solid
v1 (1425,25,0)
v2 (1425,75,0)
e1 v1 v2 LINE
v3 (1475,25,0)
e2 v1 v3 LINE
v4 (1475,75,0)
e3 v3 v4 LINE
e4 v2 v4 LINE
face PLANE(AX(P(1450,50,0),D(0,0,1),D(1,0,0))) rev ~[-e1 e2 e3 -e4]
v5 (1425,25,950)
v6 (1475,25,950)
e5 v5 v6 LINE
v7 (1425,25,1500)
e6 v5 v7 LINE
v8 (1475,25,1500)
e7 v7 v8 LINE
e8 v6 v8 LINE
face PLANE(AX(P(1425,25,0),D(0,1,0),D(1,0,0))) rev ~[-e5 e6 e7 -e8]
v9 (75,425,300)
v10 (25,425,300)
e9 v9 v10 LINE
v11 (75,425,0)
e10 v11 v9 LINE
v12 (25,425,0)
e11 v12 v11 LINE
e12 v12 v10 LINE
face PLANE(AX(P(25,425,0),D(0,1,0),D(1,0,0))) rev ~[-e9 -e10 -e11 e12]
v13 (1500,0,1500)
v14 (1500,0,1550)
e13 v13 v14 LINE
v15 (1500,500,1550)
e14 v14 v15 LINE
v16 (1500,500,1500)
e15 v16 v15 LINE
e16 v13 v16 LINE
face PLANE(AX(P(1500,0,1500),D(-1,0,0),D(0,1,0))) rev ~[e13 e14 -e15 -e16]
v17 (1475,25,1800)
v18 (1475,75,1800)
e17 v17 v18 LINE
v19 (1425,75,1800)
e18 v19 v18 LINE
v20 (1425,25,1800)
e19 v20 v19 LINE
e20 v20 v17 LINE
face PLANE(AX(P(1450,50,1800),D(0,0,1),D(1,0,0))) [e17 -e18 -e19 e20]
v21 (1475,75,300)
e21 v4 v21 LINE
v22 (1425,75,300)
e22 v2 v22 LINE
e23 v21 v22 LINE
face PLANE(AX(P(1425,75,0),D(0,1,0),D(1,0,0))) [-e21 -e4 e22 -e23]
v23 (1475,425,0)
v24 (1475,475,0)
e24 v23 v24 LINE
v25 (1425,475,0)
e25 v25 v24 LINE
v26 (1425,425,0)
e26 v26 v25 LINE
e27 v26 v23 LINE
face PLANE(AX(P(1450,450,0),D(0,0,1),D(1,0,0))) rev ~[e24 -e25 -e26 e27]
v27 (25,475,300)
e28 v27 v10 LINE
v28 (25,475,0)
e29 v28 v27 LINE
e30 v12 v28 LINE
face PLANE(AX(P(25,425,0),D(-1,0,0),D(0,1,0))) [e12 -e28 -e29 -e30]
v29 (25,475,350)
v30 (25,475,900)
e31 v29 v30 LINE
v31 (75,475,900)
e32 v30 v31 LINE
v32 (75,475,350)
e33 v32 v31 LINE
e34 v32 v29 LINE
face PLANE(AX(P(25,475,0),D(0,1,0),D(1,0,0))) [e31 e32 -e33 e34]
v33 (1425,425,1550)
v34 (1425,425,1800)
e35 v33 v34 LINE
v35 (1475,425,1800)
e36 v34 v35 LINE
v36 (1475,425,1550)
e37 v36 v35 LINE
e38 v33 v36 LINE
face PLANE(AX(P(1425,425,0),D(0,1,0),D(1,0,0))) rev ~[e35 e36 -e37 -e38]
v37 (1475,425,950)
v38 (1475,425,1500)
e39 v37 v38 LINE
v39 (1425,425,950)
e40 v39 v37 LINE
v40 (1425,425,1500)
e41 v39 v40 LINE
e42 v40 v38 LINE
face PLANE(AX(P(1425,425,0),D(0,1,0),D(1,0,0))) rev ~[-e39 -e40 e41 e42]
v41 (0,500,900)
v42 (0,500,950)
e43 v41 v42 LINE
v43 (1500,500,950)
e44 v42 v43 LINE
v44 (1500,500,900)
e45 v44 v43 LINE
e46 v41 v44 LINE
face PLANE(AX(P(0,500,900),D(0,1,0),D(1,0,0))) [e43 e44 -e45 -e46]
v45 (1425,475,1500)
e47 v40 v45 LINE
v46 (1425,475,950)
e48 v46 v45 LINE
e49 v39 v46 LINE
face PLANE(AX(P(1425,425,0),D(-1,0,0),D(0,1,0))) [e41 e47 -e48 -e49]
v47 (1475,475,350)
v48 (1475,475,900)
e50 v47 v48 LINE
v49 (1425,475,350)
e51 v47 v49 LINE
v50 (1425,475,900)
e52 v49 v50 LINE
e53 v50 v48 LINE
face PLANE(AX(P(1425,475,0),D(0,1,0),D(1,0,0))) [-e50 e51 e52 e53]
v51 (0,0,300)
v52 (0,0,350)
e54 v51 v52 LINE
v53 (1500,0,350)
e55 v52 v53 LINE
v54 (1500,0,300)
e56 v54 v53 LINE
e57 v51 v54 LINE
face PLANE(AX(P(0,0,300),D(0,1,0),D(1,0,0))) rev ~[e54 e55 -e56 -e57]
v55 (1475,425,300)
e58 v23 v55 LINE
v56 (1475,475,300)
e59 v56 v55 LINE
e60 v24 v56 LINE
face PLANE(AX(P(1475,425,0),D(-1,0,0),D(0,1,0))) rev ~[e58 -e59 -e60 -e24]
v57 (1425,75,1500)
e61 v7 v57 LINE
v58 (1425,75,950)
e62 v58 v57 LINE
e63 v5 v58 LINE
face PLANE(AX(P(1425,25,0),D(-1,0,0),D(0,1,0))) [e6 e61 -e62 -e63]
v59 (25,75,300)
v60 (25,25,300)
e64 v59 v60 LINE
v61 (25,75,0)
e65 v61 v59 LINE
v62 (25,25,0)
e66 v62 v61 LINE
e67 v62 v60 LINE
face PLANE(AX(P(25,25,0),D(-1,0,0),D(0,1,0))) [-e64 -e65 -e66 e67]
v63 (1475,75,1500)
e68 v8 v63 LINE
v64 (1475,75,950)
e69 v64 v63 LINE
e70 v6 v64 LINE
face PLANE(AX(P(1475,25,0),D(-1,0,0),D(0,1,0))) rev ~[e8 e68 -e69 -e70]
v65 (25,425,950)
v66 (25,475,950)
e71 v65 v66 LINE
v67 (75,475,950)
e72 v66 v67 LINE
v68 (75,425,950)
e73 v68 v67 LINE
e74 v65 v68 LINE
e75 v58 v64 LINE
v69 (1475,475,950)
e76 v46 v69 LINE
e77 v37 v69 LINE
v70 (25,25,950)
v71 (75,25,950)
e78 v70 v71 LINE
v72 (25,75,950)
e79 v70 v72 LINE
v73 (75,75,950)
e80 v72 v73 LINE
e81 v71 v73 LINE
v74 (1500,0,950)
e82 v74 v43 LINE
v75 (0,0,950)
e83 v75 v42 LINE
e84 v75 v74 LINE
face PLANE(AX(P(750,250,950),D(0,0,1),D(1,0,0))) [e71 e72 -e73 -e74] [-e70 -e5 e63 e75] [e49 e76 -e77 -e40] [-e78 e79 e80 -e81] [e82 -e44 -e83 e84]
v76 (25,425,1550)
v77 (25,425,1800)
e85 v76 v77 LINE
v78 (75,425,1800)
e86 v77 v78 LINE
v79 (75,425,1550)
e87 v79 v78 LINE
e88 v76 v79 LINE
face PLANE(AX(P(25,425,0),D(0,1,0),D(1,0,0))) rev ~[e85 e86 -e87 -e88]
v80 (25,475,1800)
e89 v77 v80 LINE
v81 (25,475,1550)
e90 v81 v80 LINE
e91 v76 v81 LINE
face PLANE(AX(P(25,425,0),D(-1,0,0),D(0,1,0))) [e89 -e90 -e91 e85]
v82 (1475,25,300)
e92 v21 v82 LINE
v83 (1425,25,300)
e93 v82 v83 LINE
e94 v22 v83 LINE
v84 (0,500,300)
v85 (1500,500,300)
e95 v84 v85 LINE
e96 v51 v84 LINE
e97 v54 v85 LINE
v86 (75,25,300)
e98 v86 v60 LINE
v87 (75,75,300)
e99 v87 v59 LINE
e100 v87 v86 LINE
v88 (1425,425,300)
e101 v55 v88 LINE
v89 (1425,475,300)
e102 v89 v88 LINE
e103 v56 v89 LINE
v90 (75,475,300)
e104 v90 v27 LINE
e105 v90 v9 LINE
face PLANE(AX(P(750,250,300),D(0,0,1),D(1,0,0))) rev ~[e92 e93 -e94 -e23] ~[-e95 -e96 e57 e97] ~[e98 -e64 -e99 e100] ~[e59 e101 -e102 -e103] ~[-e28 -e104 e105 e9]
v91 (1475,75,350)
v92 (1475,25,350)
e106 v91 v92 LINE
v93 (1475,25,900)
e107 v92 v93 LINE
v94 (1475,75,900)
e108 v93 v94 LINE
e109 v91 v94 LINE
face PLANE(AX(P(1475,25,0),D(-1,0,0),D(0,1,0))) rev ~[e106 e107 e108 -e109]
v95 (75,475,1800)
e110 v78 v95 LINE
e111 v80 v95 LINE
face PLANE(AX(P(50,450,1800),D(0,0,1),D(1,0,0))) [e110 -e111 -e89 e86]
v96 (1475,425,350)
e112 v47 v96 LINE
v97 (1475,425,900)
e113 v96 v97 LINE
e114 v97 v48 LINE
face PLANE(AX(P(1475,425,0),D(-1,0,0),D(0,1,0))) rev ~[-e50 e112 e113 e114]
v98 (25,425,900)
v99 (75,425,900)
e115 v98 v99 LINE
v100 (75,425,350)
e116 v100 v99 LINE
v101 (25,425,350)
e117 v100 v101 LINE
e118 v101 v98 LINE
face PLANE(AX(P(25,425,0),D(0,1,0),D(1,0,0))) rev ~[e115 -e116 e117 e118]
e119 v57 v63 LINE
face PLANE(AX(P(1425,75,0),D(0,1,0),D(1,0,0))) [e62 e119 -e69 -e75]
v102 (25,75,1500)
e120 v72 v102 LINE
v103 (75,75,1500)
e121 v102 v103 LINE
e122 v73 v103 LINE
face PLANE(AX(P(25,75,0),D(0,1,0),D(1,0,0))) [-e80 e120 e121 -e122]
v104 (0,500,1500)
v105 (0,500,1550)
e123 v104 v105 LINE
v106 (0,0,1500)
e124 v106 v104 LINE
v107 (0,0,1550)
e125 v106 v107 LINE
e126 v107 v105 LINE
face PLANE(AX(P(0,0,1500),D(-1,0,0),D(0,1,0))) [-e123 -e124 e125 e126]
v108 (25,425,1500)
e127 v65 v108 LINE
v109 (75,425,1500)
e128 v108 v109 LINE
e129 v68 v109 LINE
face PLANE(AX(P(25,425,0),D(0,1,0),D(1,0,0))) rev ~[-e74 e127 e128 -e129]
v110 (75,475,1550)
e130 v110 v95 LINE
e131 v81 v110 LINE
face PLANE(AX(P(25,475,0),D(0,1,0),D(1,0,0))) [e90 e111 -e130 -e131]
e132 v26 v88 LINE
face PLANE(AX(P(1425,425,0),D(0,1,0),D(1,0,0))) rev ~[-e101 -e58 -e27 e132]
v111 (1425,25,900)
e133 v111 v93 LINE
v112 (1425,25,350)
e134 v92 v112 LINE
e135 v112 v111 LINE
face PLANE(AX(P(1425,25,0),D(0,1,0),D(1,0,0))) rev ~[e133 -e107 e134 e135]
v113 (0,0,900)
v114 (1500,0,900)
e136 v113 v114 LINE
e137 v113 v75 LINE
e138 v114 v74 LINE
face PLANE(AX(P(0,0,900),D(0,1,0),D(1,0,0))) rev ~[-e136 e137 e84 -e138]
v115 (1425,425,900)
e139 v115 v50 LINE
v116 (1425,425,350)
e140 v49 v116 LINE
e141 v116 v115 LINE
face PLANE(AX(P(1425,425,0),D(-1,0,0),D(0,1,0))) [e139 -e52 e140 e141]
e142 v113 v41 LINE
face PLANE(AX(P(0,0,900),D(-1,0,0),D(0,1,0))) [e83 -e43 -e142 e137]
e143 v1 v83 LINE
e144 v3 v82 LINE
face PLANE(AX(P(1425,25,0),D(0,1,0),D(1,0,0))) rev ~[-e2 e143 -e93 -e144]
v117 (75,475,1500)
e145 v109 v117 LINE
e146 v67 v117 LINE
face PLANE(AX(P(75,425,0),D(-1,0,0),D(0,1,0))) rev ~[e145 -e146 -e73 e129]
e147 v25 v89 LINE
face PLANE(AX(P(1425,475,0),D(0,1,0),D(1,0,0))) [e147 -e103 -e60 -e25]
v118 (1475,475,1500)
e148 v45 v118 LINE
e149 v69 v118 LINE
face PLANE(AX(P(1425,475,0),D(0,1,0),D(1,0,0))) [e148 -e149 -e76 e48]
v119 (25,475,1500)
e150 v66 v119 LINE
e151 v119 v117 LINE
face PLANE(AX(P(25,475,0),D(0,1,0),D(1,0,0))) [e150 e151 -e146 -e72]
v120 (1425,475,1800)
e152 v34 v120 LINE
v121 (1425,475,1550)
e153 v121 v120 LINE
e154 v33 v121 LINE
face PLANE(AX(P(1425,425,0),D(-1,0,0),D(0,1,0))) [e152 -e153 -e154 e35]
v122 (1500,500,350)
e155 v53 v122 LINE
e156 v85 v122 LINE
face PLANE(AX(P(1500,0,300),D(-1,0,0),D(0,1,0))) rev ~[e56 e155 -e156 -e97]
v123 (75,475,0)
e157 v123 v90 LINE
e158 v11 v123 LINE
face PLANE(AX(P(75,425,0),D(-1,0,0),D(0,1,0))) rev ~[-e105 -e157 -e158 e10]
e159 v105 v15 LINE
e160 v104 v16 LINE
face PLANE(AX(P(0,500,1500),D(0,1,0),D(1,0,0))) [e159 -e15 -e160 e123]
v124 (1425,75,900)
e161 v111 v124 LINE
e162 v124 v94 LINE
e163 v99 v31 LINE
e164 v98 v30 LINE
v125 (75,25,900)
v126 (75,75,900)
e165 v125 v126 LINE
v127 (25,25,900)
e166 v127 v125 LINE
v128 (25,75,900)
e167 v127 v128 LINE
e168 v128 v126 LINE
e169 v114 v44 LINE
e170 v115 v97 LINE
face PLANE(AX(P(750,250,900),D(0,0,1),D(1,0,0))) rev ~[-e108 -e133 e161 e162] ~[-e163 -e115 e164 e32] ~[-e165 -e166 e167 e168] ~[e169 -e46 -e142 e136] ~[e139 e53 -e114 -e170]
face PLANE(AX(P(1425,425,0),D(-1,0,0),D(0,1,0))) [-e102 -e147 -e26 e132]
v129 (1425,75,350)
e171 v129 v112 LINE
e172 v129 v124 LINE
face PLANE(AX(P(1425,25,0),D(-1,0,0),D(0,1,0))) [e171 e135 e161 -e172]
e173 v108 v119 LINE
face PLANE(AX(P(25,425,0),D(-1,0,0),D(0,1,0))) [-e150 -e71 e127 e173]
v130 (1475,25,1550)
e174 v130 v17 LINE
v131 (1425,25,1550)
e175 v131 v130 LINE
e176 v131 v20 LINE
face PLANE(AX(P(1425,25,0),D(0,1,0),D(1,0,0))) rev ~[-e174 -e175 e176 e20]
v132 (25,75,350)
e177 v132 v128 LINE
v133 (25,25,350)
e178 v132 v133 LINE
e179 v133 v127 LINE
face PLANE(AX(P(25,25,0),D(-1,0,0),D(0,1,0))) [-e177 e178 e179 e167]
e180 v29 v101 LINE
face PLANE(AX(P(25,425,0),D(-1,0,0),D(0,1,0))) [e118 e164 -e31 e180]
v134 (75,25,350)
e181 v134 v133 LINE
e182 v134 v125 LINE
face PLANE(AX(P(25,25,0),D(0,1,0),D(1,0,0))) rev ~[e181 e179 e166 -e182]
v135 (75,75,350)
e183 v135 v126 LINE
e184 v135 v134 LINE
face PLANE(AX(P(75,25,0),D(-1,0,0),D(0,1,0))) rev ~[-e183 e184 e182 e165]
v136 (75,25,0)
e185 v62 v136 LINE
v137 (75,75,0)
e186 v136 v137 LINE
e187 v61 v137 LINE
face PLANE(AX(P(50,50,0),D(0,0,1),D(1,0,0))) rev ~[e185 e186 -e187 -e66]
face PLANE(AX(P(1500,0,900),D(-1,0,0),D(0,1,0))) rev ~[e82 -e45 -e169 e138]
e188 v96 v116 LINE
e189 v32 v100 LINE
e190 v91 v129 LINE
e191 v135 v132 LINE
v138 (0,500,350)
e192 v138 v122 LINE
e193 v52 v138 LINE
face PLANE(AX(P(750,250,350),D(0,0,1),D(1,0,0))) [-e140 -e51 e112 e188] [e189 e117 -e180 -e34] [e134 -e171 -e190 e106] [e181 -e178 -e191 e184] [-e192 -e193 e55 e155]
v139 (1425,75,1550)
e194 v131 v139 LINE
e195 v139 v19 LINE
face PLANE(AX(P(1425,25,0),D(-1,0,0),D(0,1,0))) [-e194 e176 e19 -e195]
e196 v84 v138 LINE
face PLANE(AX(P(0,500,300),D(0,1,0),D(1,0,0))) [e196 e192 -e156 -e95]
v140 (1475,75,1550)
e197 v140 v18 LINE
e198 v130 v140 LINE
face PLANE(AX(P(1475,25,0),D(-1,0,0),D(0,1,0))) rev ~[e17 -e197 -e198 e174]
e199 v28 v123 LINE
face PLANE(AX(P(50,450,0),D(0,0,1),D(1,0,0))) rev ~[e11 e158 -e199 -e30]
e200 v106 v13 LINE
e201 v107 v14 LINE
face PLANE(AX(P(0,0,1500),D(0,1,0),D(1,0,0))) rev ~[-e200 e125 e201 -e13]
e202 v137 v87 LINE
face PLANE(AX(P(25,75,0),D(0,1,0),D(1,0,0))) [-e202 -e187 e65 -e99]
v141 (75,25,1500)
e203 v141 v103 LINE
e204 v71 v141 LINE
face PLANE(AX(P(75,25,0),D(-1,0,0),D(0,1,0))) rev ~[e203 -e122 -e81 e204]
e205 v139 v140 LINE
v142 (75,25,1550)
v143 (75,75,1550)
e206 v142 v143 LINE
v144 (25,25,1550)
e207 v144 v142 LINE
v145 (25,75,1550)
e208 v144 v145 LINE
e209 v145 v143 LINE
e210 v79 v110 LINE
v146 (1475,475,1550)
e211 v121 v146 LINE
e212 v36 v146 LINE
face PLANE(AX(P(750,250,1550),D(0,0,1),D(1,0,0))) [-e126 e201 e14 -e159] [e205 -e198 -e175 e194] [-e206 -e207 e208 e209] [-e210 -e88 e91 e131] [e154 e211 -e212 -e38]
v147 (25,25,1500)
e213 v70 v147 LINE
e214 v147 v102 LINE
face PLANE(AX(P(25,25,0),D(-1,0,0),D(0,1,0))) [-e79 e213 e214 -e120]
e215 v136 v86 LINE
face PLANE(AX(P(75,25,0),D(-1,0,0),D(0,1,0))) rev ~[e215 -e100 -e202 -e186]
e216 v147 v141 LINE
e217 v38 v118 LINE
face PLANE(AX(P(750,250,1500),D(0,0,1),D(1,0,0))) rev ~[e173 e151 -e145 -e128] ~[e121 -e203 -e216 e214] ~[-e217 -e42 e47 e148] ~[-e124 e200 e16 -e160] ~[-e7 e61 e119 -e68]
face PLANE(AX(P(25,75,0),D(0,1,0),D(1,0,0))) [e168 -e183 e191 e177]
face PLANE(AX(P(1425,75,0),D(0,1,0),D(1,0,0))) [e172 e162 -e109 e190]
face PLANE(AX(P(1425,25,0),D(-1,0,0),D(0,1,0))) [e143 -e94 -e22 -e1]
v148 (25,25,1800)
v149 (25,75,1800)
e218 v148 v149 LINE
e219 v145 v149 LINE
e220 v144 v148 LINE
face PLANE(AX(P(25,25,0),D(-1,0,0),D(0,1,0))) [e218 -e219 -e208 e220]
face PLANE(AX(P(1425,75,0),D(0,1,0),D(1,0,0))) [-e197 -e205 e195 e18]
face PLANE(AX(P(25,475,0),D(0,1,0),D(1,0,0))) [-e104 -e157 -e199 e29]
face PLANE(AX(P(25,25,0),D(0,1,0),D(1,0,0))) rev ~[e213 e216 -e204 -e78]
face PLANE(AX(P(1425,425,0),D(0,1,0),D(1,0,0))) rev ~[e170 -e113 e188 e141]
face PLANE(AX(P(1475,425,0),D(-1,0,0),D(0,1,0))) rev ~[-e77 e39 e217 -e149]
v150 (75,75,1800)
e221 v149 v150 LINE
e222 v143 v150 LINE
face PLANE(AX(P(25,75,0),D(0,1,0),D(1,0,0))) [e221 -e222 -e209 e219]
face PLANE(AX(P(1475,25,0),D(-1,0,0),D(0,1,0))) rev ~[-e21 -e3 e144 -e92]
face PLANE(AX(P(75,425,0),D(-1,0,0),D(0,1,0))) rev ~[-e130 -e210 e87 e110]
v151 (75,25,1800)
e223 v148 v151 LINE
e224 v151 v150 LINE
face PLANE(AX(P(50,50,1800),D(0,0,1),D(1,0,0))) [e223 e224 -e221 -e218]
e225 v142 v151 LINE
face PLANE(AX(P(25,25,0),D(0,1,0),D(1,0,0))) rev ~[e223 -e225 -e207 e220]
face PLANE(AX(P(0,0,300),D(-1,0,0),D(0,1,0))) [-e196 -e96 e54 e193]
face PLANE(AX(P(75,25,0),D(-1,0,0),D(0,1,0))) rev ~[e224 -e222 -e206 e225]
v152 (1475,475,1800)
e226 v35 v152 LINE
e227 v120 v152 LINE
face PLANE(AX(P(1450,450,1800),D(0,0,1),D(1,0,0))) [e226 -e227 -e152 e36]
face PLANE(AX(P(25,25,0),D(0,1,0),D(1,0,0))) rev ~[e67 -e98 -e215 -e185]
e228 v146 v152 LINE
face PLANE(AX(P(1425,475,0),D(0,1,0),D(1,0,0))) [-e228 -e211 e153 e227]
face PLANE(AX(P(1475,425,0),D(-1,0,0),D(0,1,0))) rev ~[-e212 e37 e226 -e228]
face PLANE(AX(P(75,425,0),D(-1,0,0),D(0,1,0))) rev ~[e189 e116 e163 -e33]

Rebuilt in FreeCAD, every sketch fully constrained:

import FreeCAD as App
import Part
import Sketcher
Q = App.Units.Quantity

doc = App.newDocument("Part")
body = doc.addObject("PartDesign::Body", "Body")

# Sketch on XY plane
sketch1 = doc.addObject("Sketcher::SketchObject", "Sketch")
body.addObject(sketch1)
sketch1.AttachmentSupport = (doc.XY_Plane, [""])
sketch1.MapMode = "FlatFace"
sketch1.AttachmentOffset = App.Placement(App.Vector(0, 0, 300), App.Rotation())
sketch1.addGeometry([
    Part.LineSegment(App.Vector(0, 500, 0), App.Vector(0, 0, 0)),
    Part.LineSegment(App.Vector(0, 0, 0), App.Vector(1500, 0, 0)),
    Part.LineSegment(App.Vector(1500, 0, 0), App.Vector(1500, 500, 0)),
    Part.LineSegment(App.Vector(1500, 500, 0), App.Vector(0, 500, 0)),
], False)
sketch1.addConstraint([
    Sketcher.Constraint("Coincident", 0, 2, 1, 1),
    Sketcher.Constraint("Coincident", 1, 2, 2, 1),
    Sketcher.Constraint("Coincident", 2, 2, 3, 1),
    Sketcher.Constraint("Coincident", 3, 2, 0, 1),
    Sketcher.Constraint("Vertical", 0),
    Sketcher.Constraint("Horizontal", 1),
    Sketcher.Constraint("Vertical", 2),
    Sketcher.Constraint("Horizontal", 3),
    Sketcher.Constraint("Coincident", 0, 2, -1, 1),
    Sketcher.Constraint("DistanceX", 1, 1, 1, 2, Q("1500 mm")),
    Sketcher.Constraint("DistanceY", 0, 2, 0, 1, Q("500 mm")),
])
pad1 = doc.addObject("PartDesign::Pad", "Pad")
body.addObject(pad1)
pad1.Profile = sketch1
pad1.Length = 50

# Sketch on XY plane
sketch2 = doc.addObject("Sketcher::SketchObject", "Sketch001")
body.addObject(sketch2)
sketch2.AttachmentSupport = (doc.XY_Plane, [""])
sketch2.MapMode = "FlatFace"
sketch2.addGeometry([
    Part.LineSegment(App.Vector(25, 75, 0), App.Vector(25, 25, 0)),  # 0
    Part.LineSegment(App.Vector(25, 25, 0), App.Vector(75, 25, 0)),  # 1
    Part.LineSegment(App.Vector(75, 25, 0), App.Vector(75, 75, 0)),  # 2
    Part.LineSegment(App.Vector(75, 75, 0), App.Vector(25, 75, 0)),  # 3
    Part.LineSegment(App.Vector(1425, 75, 0), App.Vector(1425, 25, 0)),  # 4
    Part.LineSegment(App.Vector(1425, 25, 0), App.Vector(1475, 25, 0)),  # 5
    Part.LineSegment(App.Vector(1475, 25, 0), App.Vector(1475, 75, 0)),  # 6
    Part.LineSegment(App.Vector(1475, 75, 0), App.Vector(1425, 75, 0)),  # 7
    Part.LineSegment(App.Vector(1425, 475, 0), App.Vector(1425, 425, 0)),  # 8
    Part.LineSegment(App.Vector(1425, 425, 0), App.Vector(1475, 425, 0)),  # 9
    Part.LineSegment(App.Vector(1475, 425, 0), App.Vector(1475, 475, 0)),  # 10
    Part.LineSegment(App.Vector(1475, 475, 0), App.Vector(1425, 475, 0)),  # 11
    Part.LineSegment(App.Vector(25, 475, 0), App.Vector(25, 425, 0)),  # 12
    Part.LineSegment(App.Vector(25, 425, 0), App.Vector(75, 425, 0)),  # 13
    Part.LineSegment(App.Vector(75, 425, 0), App.Vector(75, 475, 0)),  # 14
    Part.LineSegment(App.Vector(75, 475, 0), App.Vector(25, 475, 0)),  # 15
], False)
sketch2.addConstraint([
    Sketcher.Constraint("Coincident", 0, 2, 1, 1),
    Sketcher.Constraint("Coincident", 1, 2, 2, 1),
    Sketcher.Constraint("Coincident", 2, 2, 3, 1),
    Sketcher.Constraint("Coincident", 3, 2, 0, 1),
    Sketcher.Constraint("Coincident", 4, 2, 5, 1),
    Sketcher.Constraint("Coincident", 5, 2, 6, 1),
    Sketcher.Constraint("Coincident", 6, 2, 7, 1),
    Sketcher.Constraint("Coincident", 7, 2, 4, 1),
    Sketcher.Constraint("Coincident", 8, 2, 9, 1),
    Sketcher.Constraint("Coincident", 9, 2, 10, 1),
    Sketcher.Constraint("Coincident", 10, 2, 11, 1),
    Sketcher.Constraint("Coincident", 11, 2, 8, 1),
    Sketcher.Constraint("Coincident", 12, 2, 13, 1),
    Sketcher.Constraint("Coincident", 13, 2, 14, 1),
    Sketcher.Constraint("Coincident", 14, 2, 15, 1),
    Sketcher.Constraint("Coincident", 15, 2, 12, 1),
    Sketcher.Constraint("Vertical", 0),
    Sketcher.Constraint("Horizontal", 1),
    Sketcher.Constraint("Vertical", 2),
    Sketcher.Constraint("Horizontal", 3),
    Sketcher.Constraint("Vertical", 4),
    Sketcher.Constraint("Horizontal", 5),
    Sketcher.Constraint("Vertical", 6),
    Sketcher.Constraint("Horizontal", 7),
    Sketcher.Constraint("Vertical", 8),
    Sketcher.Constraint("Horizontal", 9),
    Sketcher.Constraint("Vertical", 10),
    Sketcher.Constraint("Horizontal", 11),
    Sketcher.Constraint("Vertical", 12),
    Sketcher.Constraint("Horizontal", 13),
    Sketcher.Constraint("Vertical", 14),
    Sketcher.Constraint("Horizontal", 15),
    Sketcher.Constraint("Horizontal", 1, 2, 4, 2),
    Sketcher.Constraint("Horizontal", 3, 2, 6, 2),
    Sketcher.Constraint("Horizontal", 9, 2, 12, 2),
    Sketcher.Constraint("Horizontal", 11, 2, 14, 2),
    Sketcher.Constraint("Vertical", 7, 2, 8, 2),
    Sketcher.Constraint("Vertical", 6, 2, 9, 2),
    Sketcher.Constraint("Vertical", 3, 2, 12, 2),
    Sketcher.Constraint("Vertical", 2, 2, 13, 2),
    Sketcher.Constraint("Equal", 3, 5),
    Sketcher.Constraint("Equal", 15, 0),
    Sketcher.Constraint("Equal", 6, 8),
    Sketcher.Constraint("DistanceX", 1, 1, 1, 2, Q("50 mm")),
    Sketcher.Constraint("DistanceX", -1, 1, 0, 2, Q("25 mm")),
    Sketcher.Constraint("DistanceY", -1, 1, 0, 2, Q("25 mm")),
    Sketcher.Constraint("DistanceX", -1, 1, 4, 2, Q("1425 mm")),
    Sketcher.Constraint("DistanceY", -1, 1, 8, 2, Q("425 mm")),
])
pad2 = doc.addObject("PartDesign::Pad", "Pad001")
body.addObject(pad2)
pad2.Profile = sketch2
pad2.Length = 1800

# Sketch on XY plane
sketch3 = doc.addObject("Sketcher::SketchObject", "Sketch002")
body.addObject(sketch3)
sketch3.AttachmentSupport = (doc.XY_Plane, [""])
sketch3.MapMode = "FlatFace"
sketch3.AttachmentOffset = App.Placement(App.Vector(0, 0, 900), App.Rotation())
sketch3.addGeometry([
    Part.LineSegment(App.Vector(0, 500, 0), App.Vector(0, 0, 0)),
    Part.LineSegment(App.Vector(0, 0, 0), App.Vector(1500, 0, 0)),
    Part.LineSegment(App.Vector(1500, 0, 0), App.Vector(1500, 500, 0)),
    Part.LineSegment(App.Vector(1500, 500, 0), App.Vector(0, 500, 0)),
], False)
sketch3.addConstraint([
    Sketcher.Constraint("Coincident", 0, 2, 1, 1),
    Sketcher.Constraint("Coincident", 1, 2, 2, 1),
    Sketcher.Constraint("Coincident", 2, 2, 3, 1),
    Sketcher.Constraint("Coincident", 3, 2, 0, 1),
    Sketcher.Constraint("Vertical", 0),
    Sketcher.Constraint("Horizontal", 1),
    Sketcher.Constraint("Vertical", 2),
    Sketcher.Constraint("Horizontal", 3),
    Sketcher.Constraint("Coincident", 0, 2, -1, 1),
    Sketcher.Constraint("DistanceX", 1, 1, 1, 2, Q("1500 mm")),
    Sketcher.Constraint("DistanceY", 0, 2, 0, 1, Q("500 mm")),
])
pad3 = doc.addObject("PartDesign::Pad", "Pad002")
body.addObject(pad3)
pad3.Profile = sketch3
pad3.Length = 50

# Sketch on XY plane
sketch4 = doc.addObject("Sketcher::SketchObject", "Sketch003")
body.addObject(sketch4)
sketch4.AttachmentSupport = (doc.XY_Plane, [""])
sketch4.MapMode = "FlatFace"
sketch4.AttachmentOffset = App.Placement(App.Vector(0, 0, 1500), App.Rotation())
sketch4.addGeometry([
    Part.LineSegment(App.Vector(0, 500, 0), App.Vector(0, 0, 0)),
    Part.LineSegment(App.Vector(0, 0, 0), App.Vector(1500, 0, 0)),
    Part.LineSegment(App.Vector(1500, 0, 0), App.Vector(1500, 500, 0)),
    Part.LineSegment(App.Vector(1500, 500, 0), App.Vector(0, 500, 0)),
], False)
sketch4.addConstraint([
    Sketcher.Constraint("Coincident", 0, 2, 1, 1),
    Sketcher.Constraint("Coincident", 1, 2, 2, 1),
    Sketcher.Constraint("Coincident", 2, 2, 3, 1),
    Sketcher.Constraint("Coincident", 3, 2, 0, 1),
    Sketcher.Constraint("Vertical", 0),
    Sketcher.Constraint("Horizontal", 1),
    Sketcher.Constraint("Vertical", 2),
    Sketcher.Constraint("Horizontal", 3),
    Sketcher.Constraint("Coincident", 0, 2, -1, 1),
    Sketcher.Constraint("DistanceX", 1, 1, 1, 2, Q("1500 mm")),
    Sketcher.Constraint("DistanceY", 0, 2, 0, 1, Q("500 mm")),
])
pad4 = doc.addObject("PartDesign::Pad", "Pad003")
body.addObject(pad4)
pad4.Profile = sketch4
pad4.Length = 50

doc.recompute()
